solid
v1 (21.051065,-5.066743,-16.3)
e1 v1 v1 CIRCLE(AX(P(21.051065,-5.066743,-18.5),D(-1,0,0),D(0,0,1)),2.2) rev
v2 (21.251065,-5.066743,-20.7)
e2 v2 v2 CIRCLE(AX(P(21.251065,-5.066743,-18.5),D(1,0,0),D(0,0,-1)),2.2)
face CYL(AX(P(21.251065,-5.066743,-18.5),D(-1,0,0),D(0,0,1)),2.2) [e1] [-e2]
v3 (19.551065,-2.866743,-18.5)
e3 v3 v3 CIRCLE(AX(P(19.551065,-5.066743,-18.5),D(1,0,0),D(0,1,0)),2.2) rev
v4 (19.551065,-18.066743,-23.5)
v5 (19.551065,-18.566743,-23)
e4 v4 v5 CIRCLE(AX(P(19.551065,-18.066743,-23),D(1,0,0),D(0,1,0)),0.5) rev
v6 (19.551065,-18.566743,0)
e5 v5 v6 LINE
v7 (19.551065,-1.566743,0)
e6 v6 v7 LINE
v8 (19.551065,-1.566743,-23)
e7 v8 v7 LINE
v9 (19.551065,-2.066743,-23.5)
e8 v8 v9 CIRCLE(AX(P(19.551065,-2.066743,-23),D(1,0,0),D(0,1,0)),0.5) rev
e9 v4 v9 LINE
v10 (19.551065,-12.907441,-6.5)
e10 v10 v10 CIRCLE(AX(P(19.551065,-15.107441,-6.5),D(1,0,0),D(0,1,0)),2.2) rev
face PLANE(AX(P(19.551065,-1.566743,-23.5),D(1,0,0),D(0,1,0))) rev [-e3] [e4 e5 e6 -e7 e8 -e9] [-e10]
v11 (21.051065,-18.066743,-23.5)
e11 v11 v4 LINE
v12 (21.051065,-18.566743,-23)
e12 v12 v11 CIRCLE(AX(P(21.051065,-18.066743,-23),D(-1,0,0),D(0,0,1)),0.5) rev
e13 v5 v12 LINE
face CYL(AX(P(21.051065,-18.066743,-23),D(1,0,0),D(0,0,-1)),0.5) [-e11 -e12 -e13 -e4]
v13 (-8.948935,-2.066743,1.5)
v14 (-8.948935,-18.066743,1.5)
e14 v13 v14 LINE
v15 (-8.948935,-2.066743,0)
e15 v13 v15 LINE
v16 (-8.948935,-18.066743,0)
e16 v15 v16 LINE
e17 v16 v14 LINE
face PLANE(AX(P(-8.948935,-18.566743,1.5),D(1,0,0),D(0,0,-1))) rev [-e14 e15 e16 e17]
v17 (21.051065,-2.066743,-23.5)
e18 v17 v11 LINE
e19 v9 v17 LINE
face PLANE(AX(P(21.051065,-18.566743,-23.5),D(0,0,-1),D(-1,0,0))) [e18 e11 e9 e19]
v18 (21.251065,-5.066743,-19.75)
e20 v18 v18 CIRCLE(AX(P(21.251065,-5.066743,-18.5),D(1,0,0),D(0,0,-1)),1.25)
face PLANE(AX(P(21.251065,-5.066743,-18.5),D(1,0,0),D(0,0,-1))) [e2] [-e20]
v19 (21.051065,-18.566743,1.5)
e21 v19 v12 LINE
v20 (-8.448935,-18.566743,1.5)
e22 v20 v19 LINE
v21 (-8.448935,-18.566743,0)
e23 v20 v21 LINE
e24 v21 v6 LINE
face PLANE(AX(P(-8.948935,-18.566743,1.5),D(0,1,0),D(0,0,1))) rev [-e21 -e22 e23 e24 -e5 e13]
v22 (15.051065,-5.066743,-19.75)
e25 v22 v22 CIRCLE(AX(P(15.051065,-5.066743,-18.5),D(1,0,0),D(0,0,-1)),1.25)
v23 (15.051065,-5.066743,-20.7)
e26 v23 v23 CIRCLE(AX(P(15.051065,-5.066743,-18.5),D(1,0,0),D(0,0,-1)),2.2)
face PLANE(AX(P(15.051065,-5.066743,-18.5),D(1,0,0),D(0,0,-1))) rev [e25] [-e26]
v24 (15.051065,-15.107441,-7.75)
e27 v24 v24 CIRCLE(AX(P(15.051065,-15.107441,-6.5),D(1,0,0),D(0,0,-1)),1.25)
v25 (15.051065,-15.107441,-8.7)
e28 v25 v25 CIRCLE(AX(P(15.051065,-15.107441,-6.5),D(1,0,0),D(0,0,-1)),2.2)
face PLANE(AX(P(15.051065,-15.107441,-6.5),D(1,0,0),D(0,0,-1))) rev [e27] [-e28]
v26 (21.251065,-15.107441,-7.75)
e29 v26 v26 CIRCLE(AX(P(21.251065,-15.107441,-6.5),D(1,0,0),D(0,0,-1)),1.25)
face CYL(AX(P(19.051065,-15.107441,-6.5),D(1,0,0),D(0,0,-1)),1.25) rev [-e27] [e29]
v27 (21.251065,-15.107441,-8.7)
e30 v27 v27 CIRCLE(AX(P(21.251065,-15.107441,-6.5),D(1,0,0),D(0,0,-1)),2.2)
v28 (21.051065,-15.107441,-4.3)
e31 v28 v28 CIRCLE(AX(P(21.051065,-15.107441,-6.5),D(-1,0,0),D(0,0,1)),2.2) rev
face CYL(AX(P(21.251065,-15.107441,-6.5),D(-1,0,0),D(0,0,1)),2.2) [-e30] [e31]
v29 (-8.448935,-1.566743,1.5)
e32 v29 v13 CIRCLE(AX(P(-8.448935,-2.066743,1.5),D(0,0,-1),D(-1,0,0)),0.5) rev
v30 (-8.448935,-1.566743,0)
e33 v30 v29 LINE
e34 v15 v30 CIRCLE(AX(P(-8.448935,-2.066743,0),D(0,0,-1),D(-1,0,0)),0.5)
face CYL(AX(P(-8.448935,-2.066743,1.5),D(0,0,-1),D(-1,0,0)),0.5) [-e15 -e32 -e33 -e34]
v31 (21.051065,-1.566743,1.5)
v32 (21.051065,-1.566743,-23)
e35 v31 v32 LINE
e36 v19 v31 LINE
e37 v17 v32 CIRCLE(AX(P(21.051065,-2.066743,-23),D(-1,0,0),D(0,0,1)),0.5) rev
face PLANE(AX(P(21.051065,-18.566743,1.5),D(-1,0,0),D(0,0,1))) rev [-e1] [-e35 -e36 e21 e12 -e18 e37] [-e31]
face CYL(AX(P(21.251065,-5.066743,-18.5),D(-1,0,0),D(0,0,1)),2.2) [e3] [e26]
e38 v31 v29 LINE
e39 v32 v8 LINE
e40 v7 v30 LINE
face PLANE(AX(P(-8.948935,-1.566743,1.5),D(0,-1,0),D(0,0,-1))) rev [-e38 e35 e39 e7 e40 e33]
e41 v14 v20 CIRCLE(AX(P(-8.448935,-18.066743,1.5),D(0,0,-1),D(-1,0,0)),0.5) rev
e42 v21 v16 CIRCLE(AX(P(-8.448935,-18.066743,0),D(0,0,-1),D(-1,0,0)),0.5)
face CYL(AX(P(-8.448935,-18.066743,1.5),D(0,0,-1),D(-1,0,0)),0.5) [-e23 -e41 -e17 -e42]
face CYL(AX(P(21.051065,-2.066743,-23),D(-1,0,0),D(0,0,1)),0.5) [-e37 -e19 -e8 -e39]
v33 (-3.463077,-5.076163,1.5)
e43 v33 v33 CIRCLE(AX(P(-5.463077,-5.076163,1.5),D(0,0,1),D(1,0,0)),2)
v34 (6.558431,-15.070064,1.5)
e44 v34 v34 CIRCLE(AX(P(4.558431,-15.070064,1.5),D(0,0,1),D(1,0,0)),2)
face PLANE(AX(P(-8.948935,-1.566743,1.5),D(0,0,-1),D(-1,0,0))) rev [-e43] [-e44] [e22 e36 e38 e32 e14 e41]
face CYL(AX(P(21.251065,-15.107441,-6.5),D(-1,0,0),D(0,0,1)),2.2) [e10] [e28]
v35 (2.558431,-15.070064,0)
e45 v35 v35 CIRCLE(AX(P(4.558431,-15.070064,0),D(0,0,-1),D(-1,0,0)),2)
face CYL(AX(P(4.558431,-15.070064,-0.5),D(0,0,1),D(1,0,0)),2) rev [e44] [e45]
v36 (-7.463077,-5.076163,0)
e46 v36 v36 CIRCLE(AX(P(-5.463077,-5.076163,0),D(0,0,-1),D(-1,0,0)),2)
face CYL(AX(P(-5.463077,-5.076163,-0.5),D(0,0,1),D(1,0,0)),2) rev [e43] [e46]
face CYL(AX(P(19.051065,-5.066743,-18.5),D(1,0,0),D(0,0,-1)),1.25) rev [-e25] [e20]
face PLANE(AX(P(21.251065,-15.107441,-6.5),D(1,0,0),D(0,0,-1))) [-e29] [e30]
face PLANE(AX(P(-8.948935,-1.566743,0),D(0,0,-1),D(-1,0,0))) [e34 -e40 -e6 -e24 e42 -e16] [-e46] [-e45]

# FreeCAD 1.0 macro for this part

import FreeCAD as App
import Part
import Sketcher

V = App.Vector


def edges_at(feature, points):
    """Names of the edges that pass closest to the given points."""
    edges = feature.Shape.Edges
    near = lambda p: min(range(len(edges)), key=lambda i: edges[i].distToShape(Part.Vertex(*p))[0])
    return sorted({f"Edge{near(p) + 1}" for p in points})


def add_polygon(sketch, points):
    """Adds a closed chain of lines whose ends are joined by coincident constraints."""
    first, n = sketch.GeometryCount, len(points)
    for a, b in zip(points, points[1:] + points[:1]):
        sketch.addGeometry(Part.LineSegment(App.Vector(*a, 0), App.Vector(*b, 0)), False)
    for i in range(n):
        sketch.addConstraint(Sketcher.Constraint("Coincident", first + i, 2, first + (i + 1) % n, 1))

doc = App.newDocument("Part")
body = doc.addObject("PartDesign::Body", "Body")

sketch1 = doc.addObject("Sketcher::SketchObject", "Sketch")
body.addObject(sketch1)
sketch1.AttachmentSupport = (doc.XY_Plane, [""])
sketch1.MapMode = "FlatFace"
add_polygon(sketch1, [(-8.948935, -1.566743), (-8.948935, -18.566743), (21.051065, -18.566743), (21.051065, -1.566743)])
sketch1.addConstraint(Sketcher.Constraint("Vertical", 0))
sketch1.addConstraint(Sketcher.Constraint("Horizontal", 1))
sketch1.addConstraint(Sketcher.Constraint("Vertical", 2))
sketch1.addConstraint(Sketcher.Constraint("Horizontal", 3))
sketch1.addConstraint(Sketcher.Constraint("DistanceX", 1, 1, 1, 2, 30.0))
sketch1.addConstraint(Sketcher.Constraint("DistanceY", 0, 2, 0, 1, 17.0))
sketch1.addConstraint(Sketcher.Constraint("DistanceX", 0, 2, -1, 1, 8.948935))
sketch1.addConstraint(Sketcher.Constraint("DistanceY", 0, 2, -1, 1, 18.566743))
pad1 = doc.addObject("PartDesign::Pad", "Pad")
body.addObject(pad1)
pad1.Profile = sketch1
pad1.Length = 1.5

sketch2 = doc.addObject("Sketcher::SketchObject", "Sketch001")
body.addObject(sketch2)
sketch2.AttachmentSupport = (doc.XY_Plane, [""])
sketch2.MapMode = "FlatFace"
sketch2.AttachmentOffset = App.Placement(V(0, 0, 1.5), App.Rotation())
sketch2.addGeometry(Part.Circle(V(-5.463077, -5.076163, 0), V(0, 0, 1), 2), False)
sketch2.addGeometry(Part.Circle(V(4.558431, -15.070064, 0), V(0, 0, 1), 2), False)
sketch2.addConstraint(Sketcher.Constraint("Equal", 0, 1))
sketch2.addConstraint(Sketcher.Constraint("Diameter", 0, 4.0))
sketch2.addConstraint(Sketcher.Constraint("DistanceY", 1, 3, 0, 3, 9.993901))
sketch2.addConstraint(Sketcher.Constraint("DistanceX", -1, 1, 1, 3, 4.558431))
sketch2.addConstraint(Sketcher.Constraint("DistanceX", 0, 3, 1, 3, 10.021509))
sketch2.addConstraint(Sketcher.Constraint("DistanceY", 0, 3, -1, 1, 5.076163))
pocket1 = doc.addObject("PartDesign::Pocket", "Pocket")
body.addObject(pocket1)
pocket1.Profile = sketch2
pocket1.Length = 2

sketch3 = doc.addObject("Sketcher::SketchObject", "Sketch002")
body.addObject(sketch3)
sketch3.AttachmentSupport = (doc.XY_Plane, [""])
sketch3.MapMode = "FlatFace"
add_polygon(sketch3, [(21.051065, -1.566743), (21.051065, -18.566743), (19.551065, -18.566743), (19.551065, -1.566743)])
sketch3.addConstraint(Sketcher.Constraint("Vertical", 0))
sketch3.addConstraint(Sketcher.Constraint("Horizontal", 1))
sketch3.addConstraint(Sketcher.Constraint("Vertical", 2))
sketch3.addConstraint(Sketcher.Constraint("Horizontal", 3))
sketch3.addConstraint(Sketcher.Constraint("DistanceY", 0, 2, 0, 1, 17.0))
sketch3.addConstraint(Sketcher.Constraint("DistanceX", 1, 2, 1, 1, 1.5))
sketch3.addConstraint(Sketcher.Constraint("DistanceX", -1, 1, 0, 2, 21.051065))
sketch3.addConstraint(Sketcher.Constraint("DistanceY", 0, 2, -1, 1, 18.566743))
pad2 = doc.addObject("PartDesign::Pad", "Pad001")
body.addObject(pad2)
pad2.Profile = sketch3
pad2.Length = 23.5
pad2.Reversed = True

sketch4 = doc.addObject("Sketcher::SketchObject", "Sketch003")
body.addObject(sketch4)
sketch4.AttachmentSupport = (doc.YZ_Plane, [""])
sketch4.MapMode = "FlatFace"
sketch4.AttachmentOffset = App.Placement(V(0, 0, 21.051065), App.Rotation())
sketch4.addGeometry(Part.Circle(V(-15.107441, -6.5, 0), V(0, 0, 1), 1.25), False)
sketch4.addGeometry(Part.Circle(V(-5.066743, -18.5, 0), V(0, 0, 1), 1.25), False)
sketch4.addConstraint(Sketcher.Constraint("Equal", 0, 1))
sketch4.addConstraint(Sketcher.Constraint("Diameter", 0, 2.5))
sketch4.addConstraint(Sketcher.Constraint("DistanceY", 1, 3, 0, 3, 12.0))
sketch4.addConstraint(Sketcher.Constraint("DistanceY", 0, 3, -1, 1, 6.5))
sketch4.addConstraint(Sketcher.Constraint("DistanceX", 0, 3, -1, 1, 15.107441))
sketch4.addConstraint(Sketcher.Constraint("DistanceX", 1, 3, -1, 1, 5.066743))
pocket2 = doc.addObject("PartDesign::Pocket", "Pocket001")
body.addObject(pocket2)
pocket2.Profile = sketch4
pocket2.Length = 2

sketch5 = doc.addObject("Sketcher::SketchObject", "Sketch004")
body.addObject(sketch5)
sketch5.AttachmentSupport = (doc.YZ_Plane, [""])
sketch5.MapMode = "FlatFace"
sketch5.AttachmentOffset = App.Placement(V(0, 0, 21.051065), App.Rotation())
sketch5.addGeometry(Part.Circle(V(-15.107441, -6.5, 0), V(0, 0, 1), 2.2), False)
sketch5.addGeometry(Part.Circle(V(-15.107441, -6.5, 0), V(0, 0, 1), 1.25), False)
sketch5.addGeometry(Part.Circle(V(-5.066743, -18.5, 0), V(0, 0, 1), 2.2), False)
sketch5.addGeometry(Part.Circle(V(-5.066743, -18.5, 0), V(0, 0, 1), 1.25), False)
sketch5.addConstraint(Sketcher.Constraint("Coincident", 1, 3, 0, 3))
sketch5.addConstraint(Sketcher.Constraint("Coincident", 3, 3, 2, 3))
sketch5.addConstraint(Sketcher.Constraint("Equal", 0, 2))
sketch5.addConstraint(Sketcher.Constraint("Equal", 1, 3))
sketch5.addConstraint(Sketcher.Constraint("Diameter", 0, 4.4))
sketch5.addConstraint(Sketcher.Constraint("Diameter", 1, 2.5))
sketch5.addConstraint(Sketcher.Constraint("DistanceY", 2, 3, 0, 3, 12.0))
sketch5.addConstraint(Sketcher.Constraint("DistanceY", 0, 3, -1, 1, 6.5))
sketch5.addConstraint(Sketcher.Constraint("DistanceX", 0, 3, -1, 1, 15.107441))
sketch5.addConstraint(Sketcher.Constraint("DistanceX", 2, 3, -1, 1, 5.066743))
pad3 = doc.addObject("PartDesign::Pad", "Pad002")
body.addObject(pad3)
pad3.Profile = sketch5
pad3.Type = "TwoLengths"
pad3.Length = 0.2
pad3.Length2 = 6
doc.recompute()

fillet = doc.addObject("PartDesign::Fillet", "Fillet")
body.addObject(fillet)
fillet.Base = (pad3, edges_at(pad3, [
    (20.301, -18.567, -23.5),
    (20.301, -1.567, -23.5),
    (-8.949, -18.567, 0.75),
    (-8.949, -1.567, 0.75),
]))
fillet.Radius = 0.5

doc.recompute()
